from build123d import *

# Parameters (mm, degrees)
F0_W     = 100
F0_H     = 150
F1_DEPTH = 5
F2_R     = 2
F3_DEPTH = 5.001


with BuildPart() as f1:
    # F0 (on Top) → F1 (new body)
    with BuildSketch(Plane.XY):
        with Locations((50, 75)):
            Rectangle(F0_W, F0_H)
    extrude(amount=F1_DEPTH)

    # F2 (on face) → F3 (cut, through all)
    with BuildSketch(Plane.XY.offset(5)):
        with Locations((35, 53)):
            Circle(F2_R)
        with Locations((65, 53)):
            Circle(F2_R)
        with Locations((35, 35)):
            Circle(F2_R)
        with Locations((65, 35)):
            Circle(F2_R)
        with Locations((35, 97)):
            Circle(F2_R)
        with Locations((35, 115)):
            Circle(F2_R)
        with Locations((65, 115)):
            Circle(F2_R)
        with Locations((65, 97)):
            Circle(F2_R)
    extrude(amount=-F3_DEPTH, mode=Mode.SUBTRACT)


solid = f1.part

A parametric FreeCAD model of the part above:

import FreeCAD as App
import Part
import Sketcher
Q = App.Units.Quantity


def add_polygon(sketch, points):
    """Adds a closed chain of lines whose ends are joined by coincident constraints."""
    first, n = sketch.GeometryCount, len(points)
    for a, b in zip(points, points[1:] + points[:1]):
        sketch.addGeometry(Part.LineSegment(App.Vector(*a, 0), App.Vector(*b, 0)), False)
    for i in range(n):
        sketch.addConstraint(Sketcher.Constraint("Coincident", first + i, 2, first + (i + 1) % n, 1))

doc = App.newDocument("Part")
params = doc.addObject("Spreadsheet::Sheet", "Params")
for row, (alias, value) in enumerate([
    ("sketch1_width", "100 mm"),
    ("sketch1_height", "150 mm"),
    ("pad1_length", "5 mm"),
    ("sketch2_diameter", "4 mm"),
], start=1):
    params.set(f"A{row}", alias)
    params.set(f"B{row}", "=" + value)
    params.setAlias(f"B{row}", alias)

body = doc.addObject("PartDesign::Body", "Body")

# Sketch on XY plane
sketch1 = body.newObject("Sketcher::SketchObject", "Sketch")
sketch1.AttachmentSupport = (doc.getObject("XY_Plane"), [""])
sketch1.MapMode = "FlatFace"
add_polygon(sketch1, [(0, 150), (0, 0), (100, 0), (100, 150)])  # lines 0-3
sketch1.addConstraint([
    Sketcher.Constraint("Vertical", 0),
    Sketcher.Constraint("Horizontal", 1),
    Sketcher.Constraint("Vertical", 2),
    Sketcher.Constraint("Horizontal", 3),
    Sketcher.Constraint("Coincident", 0, 2, -1, 1),
    Sketcher.Constraint("DistanceX", 1, 1, 1, 2, Q("100 mm")),
    Sketcher.Constraint("DistanceY", 0, 2, 0, 1, Q("150 mm")),
])
sketch1.setExpression("Constraints[9]", "Params.sketch1_width")
sketch1.setExpression("Constraints[10]", "Params.sketch1_height")
pad1 = body.newObject("PartDesign::Pad", "Pad")
pad1.Profile = sketch1
pad1.setExpression("Length", "Params.pad1_length")

# Sketch on XY plane
sketch2 = body.newObject("Sketcher::SketchObject", "Sketch001")
sketch2.AttachmentSupport = (doc.getObject("XY_Plane"), [""])
sketch2.MapMode = "FlatFace"
sketch2.AttachmentOffset = App.Placement(App.Vector(0, 0, 5), App.Rotation())
sketch2.addGeometry([
    Part.Circle(App.Vector(35, 53, 0), App.Vector(0, 0, 1), 2),  # 0
    Part.Circle(App.Vector(65, 53, 0), App.Vector(0, 0, 1), 2),  # 1
    Part.Circle(App.Vector(35, 35, 0), App.Vector(0, 0, 1), 2),  # 2
    Part.Circle(App.Vector(65, 35, 0), App.Vector(0, 0, 1), 2),  # 3
    Part.Circle(App.Vector(35, 97, 0), App.Vector(0, 0, 1), 2),  # 4
    Part.Circle(App.Vector(35, 115, 0), App.Vector(0, 0, 1), 2),  # 5
    Part.Circle(App.Vector(65, 115, 0), App.Vector(0, 0, 1), 2),  # 6
    Part.Circle(App.Vector(65, 97, 0), App.Vector(0, 0, 1), 2),  # 7
], False)
sketch2.addConstraint([
    Sketcher.Constraint("Equal", 0, 1),
    Sketcher.Constraint("Equal", 1, 2),
    Sketcher.Constraint("Equal", 2, 3),
    Sketcher.Constraint("Equal", 3, 4),
    Sketcher.Constraint("Equal", 4, 5),
    Sketcher.Constraint("Equal", 5, 6),
    Sketcher.Constraint("Equal", 6, 7),
    Sketcher.Constraint("Horizontal", 0, 3, 1, 3),
    Sketcher.Constraint("Horizontal", 2, 3, 3, 3),
    Sketcher.Constraint("Horizontal", 5, 3, 6, 3),
    Sketcher.Constraint("Horizontal", 4, 3, 7, 3),
    Sketcher.Constraint("Vertical", 0, 3, 2, 3),
    Sketcher.Constraint("Vertical", 1, 3, 3, 3),
    Sketcher.Constraint("Vertical", 2, 3, 4, 3),
    Sketcher.Constraint("Vertical", 4, 3, 5, 3),
    Sketcher.Constraint("Vertical", 3, 3, 6, 3),
    Sketcher.Constraint("Vertical", 6, 3, 7, 3),
    Sketcher.Constraint("Diameter", 0, Q("4 mm")),
    Sketcher.Constraint("DistanceX", -1, 1, 0, 3, Q("35 mm")),
    Sketcher.Constraint("DistanceY", -1, 1, 0, 3, Q("53 mm")),
    Sketcher.Constraint("DistanceX", -1, 1, 1, 3, Q("65 mm")),
    Sketcher.Constraint("DistanceY", -1, 1, 2, 3, Q("35 mm")),
    Sketcher.Constraint("DistanceY", -1, 1, 4, 3, Q("97 mm")),
    Sketcher.Constraint("DistanceY", -1, 1, 5, 3, Q("115 mm")),
])
sketch2.setExpression("Constraints[17]", "Params.sketch2_diameter")
pocket1 = body.newObject("PartDesign::Pocket", "Pocket")
pocket1.Profile = sketch2
pocket1.Type = "ThroughAll"

doc.recompute()
